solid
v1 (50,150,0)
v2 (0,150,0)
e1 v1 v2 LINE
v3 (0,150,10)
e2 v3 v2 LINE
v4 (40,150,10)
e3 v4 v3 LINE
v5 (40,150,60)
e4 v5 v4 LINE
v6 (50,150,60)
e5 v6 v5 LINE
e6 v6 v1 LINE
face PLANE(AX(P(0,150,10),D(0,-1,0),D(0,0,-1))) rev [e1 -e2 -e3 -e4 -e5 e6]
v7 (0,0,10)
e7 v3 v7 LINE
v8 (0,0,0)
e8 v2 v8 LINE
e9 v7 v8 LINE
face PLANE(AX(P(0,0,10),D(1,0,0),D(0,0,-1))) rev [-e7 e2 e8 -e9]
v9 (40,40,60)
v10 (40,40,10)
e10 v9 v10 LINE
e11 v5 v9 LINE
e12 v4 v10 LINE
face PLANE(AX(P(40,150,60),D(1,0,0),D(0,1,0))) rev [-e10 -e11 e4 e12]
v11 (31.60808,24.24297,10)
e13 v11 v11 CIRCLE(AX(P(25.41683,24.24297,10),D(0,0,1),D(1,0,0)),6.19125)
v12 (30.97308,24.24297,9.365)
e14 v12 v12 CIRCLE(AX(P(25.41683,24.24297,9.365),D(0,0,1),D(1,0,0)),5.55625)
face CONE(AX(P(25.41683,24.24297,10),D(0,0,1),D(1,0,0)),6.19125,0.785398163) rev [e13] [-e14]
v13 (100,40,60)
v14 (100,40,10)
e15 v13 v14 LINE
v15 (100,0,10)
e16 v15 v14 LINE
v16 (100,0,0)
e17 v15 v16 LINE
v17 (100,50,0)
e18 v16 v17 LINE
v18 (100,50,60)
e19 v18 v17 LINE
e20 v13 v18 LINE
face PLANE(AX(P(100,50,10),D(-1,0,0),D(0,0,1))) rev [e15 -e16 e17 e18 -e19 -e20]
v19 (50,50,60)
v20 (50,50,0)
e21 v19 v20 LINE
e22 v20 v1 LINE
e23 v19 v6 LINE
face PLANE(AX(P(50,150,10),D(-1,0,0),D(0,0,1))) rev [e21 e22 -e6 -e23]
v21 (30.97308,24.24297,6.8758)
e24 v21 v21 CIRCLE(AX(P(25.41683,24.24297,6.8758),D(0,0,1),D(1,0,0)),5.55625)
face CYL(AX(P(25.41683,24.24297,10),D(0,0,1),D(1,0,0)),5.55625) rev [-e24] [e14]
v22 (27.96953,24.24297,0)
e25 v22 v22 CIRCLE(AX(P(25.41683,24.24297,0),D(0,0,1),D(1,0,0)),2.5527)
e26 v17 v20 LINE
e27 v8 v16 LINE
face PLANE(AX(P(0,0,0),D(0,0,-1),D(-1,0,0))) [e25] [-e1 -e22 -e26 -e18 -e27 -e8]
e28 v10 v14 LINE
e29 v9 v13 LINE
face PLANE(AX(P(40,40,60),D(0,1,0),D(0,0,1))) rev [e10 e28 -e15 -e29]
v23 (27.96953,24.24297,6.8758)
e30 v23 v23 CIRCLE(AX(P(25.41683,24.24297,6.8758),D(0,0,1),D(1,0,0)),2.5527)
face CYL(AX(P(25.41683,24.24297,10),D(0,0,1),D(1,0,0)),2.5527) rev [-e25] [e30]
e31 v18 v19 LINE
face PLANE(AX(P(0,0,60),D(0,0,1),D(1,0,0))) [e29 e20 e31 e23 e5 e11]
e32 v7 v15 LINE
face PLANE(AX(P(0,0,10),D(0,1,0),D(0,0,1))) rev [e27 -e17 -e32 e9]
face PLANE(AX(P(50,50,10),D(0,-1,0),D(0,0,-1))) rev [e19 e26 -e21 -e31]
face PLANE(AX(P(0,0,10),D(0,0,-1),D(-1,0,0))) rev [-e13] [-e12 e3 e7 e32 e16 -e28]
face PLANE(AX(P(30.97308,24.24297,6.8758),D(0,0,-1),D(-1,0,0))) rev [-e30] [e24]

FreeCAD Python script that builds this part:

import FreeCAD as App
import Part
import Sketcher

V = App.Vector
Q = App.Units.Quantity


def add_polygon(sketch, points):
    """Adds a closed chain of lines whose ends are joined by coincident constraints."""
    first, n = sketch.GeometryCount, len(points)
    for a, b in zip(points, points[1:] + points[:1]):
        sketch.addGeometry(Part.LineSegment(App.Vector(*a, 0), App.Vector(*b, 0)), False)
    for i in range(n):
        sketch.addConstraint(Sketcher.Constraint("Coincident", first + i, 2, first + (i + 1) % n, 1))

doc = App.newDocument("Part")
body = doc.addObject("PartDesign::Body", "Body")

# Sketch on XY plane
sketch1 = doc.addObject("Sketcher::SketchObject", "Sketch")
body.addObject(sketch1)
sketch1.AttachmentSupport = (doc.XY_Plane, [""])
sketch1.MapMode = "FlatFace"
add_polygon(sketch1, [(50, 150), (0, 150), (0, 0), (100, 0), (100, 50), (50, 50)])  # lines 0-5
sketch1.addConstraint(Sketcher.Constraint("Horizontal", 0))
sketch1.addConstraint(Sketcher.Constraint("Vertical", 1))
sketch1.addConstraint(Sketcher.Constraint("Horizontal", 2))
sketch1.addConstraint(Sketcher.Constraint("Vertical", 3))
sketch1.addConstraint(Sketcher.Constraint("Horizontal", 4))
sketch1.addConstraint(Sketcher.Constraint("Vertical", 5))
sketch1.addConstraint(Sketcher.Constraint("Coincident", 1, 2, -1, 1))
sketch1.addConstraint(Sketcher.Constraint("Equal", 0, 4))
sketch1.addConstraint(Sketcher.Constraint("Equal", 4, 3))
sketch1.addConstraint(Sketcher.Constraint("Equal", 2, 5))
sketch1.addConstraint(Sketcher.Constraint("DistanceX", 0, 2, 0, 1, Q("50 mm")))
pad1 = doc.addObject("PartDesign::Pad", "Pad")
body.addObject(pad1)
pad1.Profile = sketch1
pad1.Length = 10

# Sketch on XY plane
sketch2 = doc.addObject("Sketcher::SketchObject", "Sketch001")
body.addObject(sketch2)
sketch2.AttachmentSupport = (doc.XY_Plane, [""])
sketch2.MapMode = "FlatFace"
sketch2.AttachmentOffset = App.Placement(V(0, 0, 10), App.Rotation())
add_polygon(sketch2, [(40, 150), (40, 40), (100, 40), (100, 50), (50, 50), (50, 150)])  # lines 0-5
sketch2.addConstraint(Sketcher.Constraint("Vertical", 0))
sketch2.addConstraint(Sketcher.Constraint("Horizontal", 1))
sketch2.addConstraint(Sketcher.Constraint("Vertical", 2))
sketch2.addConstraint(Sketcher.Constraint("Horizontal", 3))
sketch2.addConstraint(Sketcher.Constraint("Vertical", 4))
sketch2.addConstraint(Sketcher.Constraint("Horizontal", 5))
sketch2.addConstraint(Sketcher.Constraint("Equal", 5, 2))
sketch2.addConstraint(Sketcher.Constraint("DistanceX", 1, 1, 1, 2, Q("60 mm")))
sketch2.addConstraint(Sketcher.Constraint("DistanceX", 3, 2, 3, 1, Q("50 mm")))
sketch2.addConstraint(Sketcher.Constraint("DistanceY", 0, 2, 0, 1, Q("110 mm")))
sketch2.addConstraint(Sketcher.Constraint("DistanceX", -1, 1, 0, 2, Q("40 mm")))
sketch2.addConstraint(Sketcher.Constraint("DistanceY", -1, 1, 0, 2, Q("40 mm")))
pad2 = doc.addObject("PartDesign::Pad", "Pad001")
body.addObject(pad2)
pad2.Profile = sketch2
pad2.Length = 50

# Sketch on YZ plane
sketch3 = doc.addObject("Sketcher::SketchObject", "Sketch002")
body.addObject(sketch3)
sketch3.AttachmentSupport = (doc.YZ_Plane, [""])
sketch3.MapMode = "FlatFace"
sketch3.AttachmentOffset = App.Placement(V(0, 0, 25.41683), App.Rotation())
add_polygon(sketch3, [(24.24297, 0), (24.24297, 10), (18.05172, 10), (18.68672, 9.365), (18.68672, 6.8758), (21.69027, 6.8758), (21.69027, 0)])  # lines 0-6
sketch3.addGeometry(Part.LineSegment(V(24.24297, 10, 0), V(24.24297, 0, 0)), True)  # axis
sketch3.addConstraint(Sketcher.Constraint("Vertical", 0))
sketch3.addConstraint(Sketcher.Constraint("Horizontal", 1))
sketch3.addConstraint(Sketcher.Constraint("Vertical", 3))
sketch3.addConstraint(Sketcher.Constraint("Horizontal", 4))
sketch3.addConstraint(Sketcher.Constraint("Vertical", 5))
sketch3.addConstraint(Sketcher.Constraint("Horizontal", 6))
sketch3.addConstraint(Sketcher.Constraint("Vertical", 7))
sketch3.addConstraint(Sketcher.Constraint("Coincident", 7, 1, 0, 2))
sketch3.addConstraint(Sketcher.Constraint("PointOnObject", 5, 2, -1))
sketch3.addConstraint(Sketcher.Constraint("PointOnObject", 7, 2, -1))
sketch3.addConstraint(Sketcher.Constraint("DistanceY", 0, 1, 0, 2, Q("10 mm")))
sketch3.addConstraint(Sketcher.Constraint("Angle", 2, Q("-45 deg")))
sketch3.addConstraint(Sketcher.Constraint("DistanceX", 6, 1, 6, 2, Q("2.5527 mm")))
sketch3.addConstraint(Sketcher.Constraint("DistanceY", 3, 2, 3, 1, Q("2.4892 mm")))
sketch3.addConstraint(Sketcher.Constraint("DistanceY", 5, 2, 5, 1, Q("6.8758 mm")))
sketch3.addConstraint(Sketcher.Constraint("DistanceX", 1, 2, 1, 1, Q("6.19125 mm")))
sketch3.addConstraint(Sketcher.Constraint("DistanceX", -1, 1, 0, 2, Q("24.24297 mm")))
groove = doc.addObject("PartDesign::Groove", "Groove")
body.addObject(groove)
groove.Profile = sketch3
groove.ReferenceAxis = (sketch3, ["Axis0"])
groove.Angle = 360

doc.recompute()
